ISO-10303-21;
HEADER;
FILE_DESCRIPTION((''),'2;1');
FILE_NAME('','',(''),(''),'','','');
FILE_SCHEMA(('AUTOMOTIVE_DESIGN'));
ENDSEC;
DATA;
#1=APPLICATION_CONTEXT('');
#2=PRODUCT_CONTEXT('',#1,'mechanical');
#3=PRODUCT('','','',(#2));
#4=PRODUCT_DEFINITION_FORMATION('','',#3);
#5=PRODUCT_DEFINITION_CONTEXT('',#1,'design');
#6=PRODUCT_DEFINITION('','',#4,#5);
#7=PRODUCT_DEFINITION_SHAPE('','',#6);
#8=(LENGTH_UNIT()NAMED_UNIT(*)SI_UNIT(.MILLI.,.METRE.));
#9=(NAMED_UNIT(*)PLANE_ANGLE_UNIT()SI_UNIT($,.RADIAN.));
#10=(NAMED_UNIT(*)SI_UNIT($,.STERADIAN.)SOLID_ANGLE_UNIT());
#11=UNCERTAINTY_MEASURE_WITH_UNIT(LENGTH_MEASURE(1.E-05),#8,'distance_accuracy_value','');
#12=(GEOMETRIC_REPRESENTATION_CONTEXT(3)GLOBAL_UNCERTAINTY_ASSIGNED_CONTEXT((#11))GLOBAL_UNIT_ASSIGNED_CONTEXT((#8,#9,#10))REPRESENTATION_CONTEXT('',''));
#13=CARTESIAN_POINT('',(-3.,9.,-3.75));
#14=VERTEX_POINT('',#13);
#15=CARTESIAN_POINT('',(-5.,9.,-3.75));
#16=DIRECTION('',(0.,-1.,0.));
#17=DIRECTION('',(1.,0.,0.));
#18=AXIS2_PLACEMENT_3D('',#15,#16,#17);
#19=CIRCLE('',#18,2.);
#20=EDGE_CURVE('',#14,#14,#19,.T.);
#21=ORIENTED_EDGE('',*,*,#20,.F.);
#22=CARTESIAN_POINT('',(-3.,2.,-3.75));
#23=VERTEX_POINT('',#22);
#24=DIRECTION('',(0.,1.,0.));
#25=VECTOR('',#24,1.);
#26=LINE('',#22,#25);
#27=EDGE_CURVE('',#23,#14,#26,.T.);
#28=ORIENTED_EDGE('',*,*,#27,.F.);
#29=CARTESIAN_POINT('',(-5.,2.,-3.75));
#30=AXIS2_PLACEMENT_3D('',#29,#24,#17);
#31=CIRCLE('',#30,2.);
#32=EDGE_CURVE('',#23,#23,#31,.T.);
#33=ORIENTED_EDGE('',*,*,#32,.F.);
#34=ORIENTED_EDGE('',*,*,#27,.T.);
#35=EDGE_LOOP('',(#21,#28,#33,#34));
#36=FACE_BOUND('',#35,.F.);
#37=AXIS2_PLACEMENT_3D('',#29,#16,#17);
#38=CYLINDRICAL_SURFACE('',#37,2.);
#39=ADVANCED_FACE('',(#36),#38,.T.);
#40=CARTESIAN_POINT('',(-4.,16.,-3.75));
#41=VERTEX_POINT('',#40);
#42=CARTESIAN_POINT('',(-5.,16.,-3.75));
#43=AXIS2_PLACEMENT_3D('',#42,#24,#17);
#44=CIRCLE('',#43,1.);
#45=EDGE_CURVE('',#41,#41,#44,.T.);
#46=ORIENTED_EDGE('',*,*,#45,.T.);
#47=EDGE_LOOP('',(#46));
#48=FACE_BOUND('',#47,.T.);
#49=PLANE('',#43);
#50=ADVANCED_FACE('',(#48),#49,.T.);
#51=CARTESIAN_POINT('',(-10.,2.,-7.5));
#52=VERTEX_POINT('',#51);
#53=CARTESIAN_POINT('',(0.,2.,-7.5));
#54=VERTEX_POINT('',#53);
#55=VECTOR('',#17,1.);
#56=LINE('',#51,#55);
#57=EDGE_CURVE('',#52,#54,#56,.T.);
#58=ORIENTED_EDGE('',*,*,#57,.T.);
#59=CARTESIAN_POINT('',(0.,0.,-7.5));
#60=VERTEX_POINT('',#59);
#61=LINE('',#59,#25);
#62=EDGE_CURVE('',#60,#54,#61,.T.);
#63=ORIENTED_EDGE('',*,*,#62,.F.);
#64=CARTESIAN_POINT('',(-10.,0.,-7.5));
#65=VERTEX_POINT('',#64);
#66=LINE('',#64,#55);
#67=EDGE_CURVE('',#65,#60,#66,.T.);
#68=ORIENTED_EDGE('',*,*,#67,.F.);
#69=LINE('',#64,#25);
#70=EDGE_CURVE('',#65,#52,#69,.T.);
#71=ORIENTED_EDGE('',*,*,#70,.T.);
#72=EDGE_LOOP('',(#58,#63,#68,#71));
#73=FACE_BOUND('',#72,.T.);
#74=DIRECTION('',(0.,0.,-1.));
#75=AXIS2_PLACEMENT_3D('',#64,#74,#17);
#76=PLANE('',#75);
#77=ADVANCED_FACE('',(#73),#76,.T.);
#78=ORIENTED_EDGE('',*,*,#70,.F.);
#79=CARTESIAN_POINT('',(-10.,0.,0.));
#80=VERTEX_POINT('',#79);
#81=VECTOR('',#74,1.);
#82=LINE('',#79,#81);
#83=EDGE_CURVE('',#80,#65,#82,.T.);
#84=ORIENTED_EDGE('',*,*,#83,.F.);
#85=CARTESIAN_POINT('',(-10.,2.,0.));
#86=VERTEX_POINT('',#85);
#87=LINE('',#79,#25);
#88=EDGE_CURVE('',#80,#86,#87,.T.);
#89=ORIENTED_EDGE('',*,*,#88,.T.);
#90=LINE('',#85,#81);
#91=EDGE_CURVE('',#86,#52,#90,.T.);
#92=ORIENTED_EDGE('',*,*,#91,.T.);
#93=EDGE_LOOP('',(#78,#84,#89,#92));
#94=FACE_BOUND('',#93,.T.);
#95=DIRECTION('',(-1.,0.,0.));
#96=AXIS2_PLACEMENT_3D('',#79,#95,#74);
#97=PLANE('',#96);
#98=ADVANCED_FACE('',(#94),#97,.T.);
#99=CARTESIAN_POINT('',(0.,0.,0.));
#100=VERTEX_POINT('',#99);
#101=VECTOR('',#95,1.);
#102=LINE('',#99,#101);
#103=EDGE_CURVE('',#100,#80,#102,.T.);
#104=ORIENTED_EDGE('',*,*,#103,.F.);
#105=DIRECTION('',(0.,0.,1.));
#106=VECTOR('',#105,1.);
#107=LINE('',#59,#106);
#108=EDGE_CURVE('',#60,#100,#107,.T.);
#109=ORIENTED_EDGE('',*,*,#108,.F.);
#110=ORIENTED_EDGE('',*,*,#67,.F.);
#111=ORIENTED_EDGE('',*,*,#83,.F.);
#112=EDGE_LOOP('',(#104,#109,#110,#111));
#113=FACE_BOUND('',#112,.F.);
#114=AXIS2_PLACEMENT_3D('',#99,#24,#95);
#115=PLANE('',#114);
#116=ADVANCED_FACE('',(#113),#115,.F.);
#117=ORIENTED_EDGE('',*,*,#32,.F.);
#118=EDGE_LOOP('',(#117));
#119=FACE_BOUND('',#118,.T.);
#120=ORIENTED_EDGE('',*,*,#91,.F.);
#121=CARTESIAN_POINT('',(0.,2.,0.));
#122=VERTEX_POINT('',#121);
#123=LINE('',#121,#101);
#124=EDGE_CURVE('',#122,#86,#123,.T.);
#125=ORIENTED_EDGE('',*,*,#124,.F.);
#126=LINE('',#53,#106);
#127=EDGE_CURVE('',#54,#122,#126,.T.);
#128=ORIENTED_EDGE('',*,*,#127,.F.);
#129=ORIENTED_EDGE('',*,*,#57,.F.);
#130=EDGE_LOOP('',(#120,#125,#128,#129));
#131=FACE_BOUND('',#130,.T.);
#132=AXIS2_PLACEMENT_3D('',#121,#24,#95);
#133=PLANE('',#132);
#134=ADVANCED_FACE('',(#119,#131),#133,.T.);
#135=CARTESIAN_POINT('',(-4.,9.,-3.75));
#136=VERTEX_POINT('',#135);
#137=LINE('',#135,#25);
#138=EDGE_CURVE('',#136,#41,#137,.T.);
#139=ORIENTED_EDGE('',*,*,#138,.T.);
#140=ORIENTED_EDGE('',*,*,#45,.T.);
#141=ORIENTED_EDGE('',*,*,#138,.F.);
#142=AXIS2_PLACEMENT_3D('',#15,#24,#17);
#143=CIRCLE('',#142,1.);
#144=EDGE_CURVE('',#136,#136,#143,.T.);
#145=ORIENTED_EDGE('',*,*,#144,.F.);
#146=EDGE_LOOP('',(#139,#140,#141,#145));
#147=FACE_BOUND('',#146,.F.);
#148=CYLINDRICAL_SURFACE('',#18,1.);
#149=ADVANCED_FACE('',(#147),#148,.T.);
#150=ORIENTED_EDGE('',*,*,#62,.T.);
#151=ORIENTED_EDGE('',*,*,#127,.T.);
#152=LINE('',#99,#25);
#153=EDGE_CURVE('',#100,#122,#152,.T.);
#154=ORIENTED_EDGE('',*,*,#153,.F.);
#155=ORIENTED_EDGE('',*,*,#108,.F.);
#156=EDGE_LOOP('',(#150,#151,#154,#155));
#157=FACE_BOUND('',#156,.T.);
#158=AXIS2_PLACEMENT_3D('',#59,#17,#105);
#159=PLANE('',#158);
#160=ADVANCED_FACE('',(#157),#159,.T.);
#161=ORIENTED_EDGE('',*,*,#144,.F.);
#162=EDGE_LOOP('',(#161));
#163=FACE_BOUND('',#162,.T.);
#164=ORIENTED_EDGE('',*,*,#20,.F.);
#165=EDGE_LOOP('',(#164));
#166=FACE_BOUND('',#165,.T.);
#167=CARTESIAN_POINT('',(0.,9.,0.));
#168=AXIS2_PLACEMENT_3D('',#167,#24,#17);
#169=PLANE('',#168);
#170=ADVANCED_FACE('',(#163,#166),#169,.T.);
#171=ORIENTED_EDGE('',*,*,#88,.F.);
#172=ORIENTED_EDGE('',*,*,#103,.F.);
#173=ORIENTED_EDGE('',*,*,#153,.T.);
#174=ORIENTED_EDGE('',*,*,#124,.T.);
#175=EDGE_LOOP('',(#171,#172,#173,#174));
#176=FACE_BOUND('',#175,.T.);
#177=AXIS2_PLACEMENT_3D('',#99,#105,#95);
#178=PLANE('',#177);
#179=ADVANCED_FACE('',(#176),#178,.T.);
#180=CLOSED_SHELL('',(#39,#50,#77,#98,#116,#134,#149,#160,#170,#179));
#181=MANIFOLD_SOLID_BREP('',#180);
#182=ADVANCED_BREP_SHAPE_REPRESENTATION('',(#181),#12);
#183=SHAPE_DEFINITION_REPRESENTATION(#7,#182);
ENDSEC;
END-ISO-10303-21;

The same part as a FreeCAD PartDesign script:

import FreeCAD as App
import Part
import Sketcher

V = App.Vector
Q = App.Units.Quantity

doc = App.newDocument("Part")
params = doc.addObject("Spreadsheet::Sheet", "Params")
for row, (alias, value) in enumerate([
    ("sketch1_width", "10 mm"),
    ("sketch1_height", "7.5 mm"),
    ("pad1_length", "2 mm"),
    ("sketch2_diameter", "4 mm"),
    ("pad2_length", "7 mm"),
    ("sketch3_diameter", "2 mm"),
    ("pad3_length", "7 mm"),
], start=1):
    params.set(f"A{row}", alias)
    params.set(f"B{row}", "=" + value)
    params.setAlias(f"B{row}", alias)

body = doc.addObject("PartDesign::Body", "Body")

sketch1 = doc.addObject("Sketcher::SketchObject", "Sketch")
body.addObject(sketch1)
sketch1.AttachmentSupport = (doc.XZ_Plane, [""])
sketch1.MapMode = "FlatFace"
sketch1.addGeometry([
    Part.LineSegment(V(-10, 0, 0), V(0, 0, 0)),
    Part.LineSegment(V(0, 0, 0), V(0, -7.5, 0)),
    Part.LineSegment(V(0, -7.5, 0), V(-10, -7.5, 0)),
    Part.LineSegment(V(-10, -7.5, 0), V(-10, 0, 0)),
], False)
sketch1.addConstraint([
    Sketcher.Constraint("Coincident", 0, 2, 1, 1),
    Sketcher.Constraint("Coincident", 1, 2, 2, 1),
    Sketcher.Constraint("Coincident", 2, 2, 3, 1),
    Sketcher.Constraint("Coincident", 3, 2, 0, 1),
    Sketcher.Constraint("Horizontal", 0),
    Sketcher.Constraint("Vertical", 1),
    Sketcher.Constraint("Horizontal", 2),
    Sketcher.Constraint("Vertical", 3),
    Sketcher.Constraint("Coincident", 0, 2, -1, 1),
    Sketcher.Constraint("DistanceX", 0, 1, 0, 2, Q("10 mm")),
    Sketcher.Constraint("DistanceY", 1, 2, 1, 1, Q("7.5 mm")),
])
sketch1.setExpression("Constraints[9]", "Params.sketch1_width")
sketch1.setExpression("Constraints[10]", "Params.sketch1_height")
pad1 = doc.addObject("PartDesign::Pad", "Pad")
body.addObject(pad1)
pad1.Profile = sketch1
pad1.setExpression("Length", "Params.pad1_length")
pad1.Reversed = True

sketch2 = doc.addObject("Sketcher::SketchObject", "Sketch001")
body.addObject(sketch2)
sketch2.AttachmentSupport = (doc.XZ_Plane, [""])
sketch2.MapMode = "FlatFace"
sketch2.AttachmentOffset = App.Placement(V(0, 0, -2), App.Rotation())
sketch2.addGeometry(Part.Circle(V(-5, -3.75, 0), V(0, 0, 1), 2), False)
sketch2.addConstraint([
    Sketcher.Constraint("Diameter", 0, Q("4 mm")),
    Sketcher.Constraint("DistanceX", 0, 3, -1, 1, Q("5 mm")),
    Sketcher.Constraint("DistanceY", 0, 3, -1, 1, Q("3.75 mm")),
])
sketch2.setExpression("Constraints[0]", "Params.sketch2_diameter")
pad2 = doc.addObject("PartDesign::Pad", "Pad001")
body.addObject(pad2)
pad2.Profile = sketch2
pad2.setExpression("Length", "Params.pad2_length")
pad2.Reversed = True

sketch3 = doc.addObject("Sketcher::SketchObject", "Sketch002")
body.addObject(sketch3)
sketch3.AttachmentSupport = (doc.XZ_Plane, [""])
sketch3.MapMode = "FlatFace"
sketch3.AttachmentOffset = App.Placement(V(0, 0, -9), App.Rotation())
sketch3.addGeometry(Part.Circle(V(-5, -3.75, 0), V(0, 0, 1), 1), False)
sketch3.addConstraint([
    Sketcher.Constraint("Diameter", 0, Q("2 mm")),
    Sketcher.Constraint("DistanceX", 0, 3, -1, 1, Q("5 mm")),
    Sketcher.Constraint("DistanceY", 0, 3, -1, 1, Q("3.75 mm")),
])
sketch3.setExpression("Constraints[0]", "Params.sketch3_diameter")
pad3 = doc.addObject("PartDesign::Pad", "Pad002")
body.addObject(pad3)
pad3.Profile = sketch3
pad3.setExpression("Length", "Params.pad3_length")
pad3.Reversed = True

doc.recompute()
